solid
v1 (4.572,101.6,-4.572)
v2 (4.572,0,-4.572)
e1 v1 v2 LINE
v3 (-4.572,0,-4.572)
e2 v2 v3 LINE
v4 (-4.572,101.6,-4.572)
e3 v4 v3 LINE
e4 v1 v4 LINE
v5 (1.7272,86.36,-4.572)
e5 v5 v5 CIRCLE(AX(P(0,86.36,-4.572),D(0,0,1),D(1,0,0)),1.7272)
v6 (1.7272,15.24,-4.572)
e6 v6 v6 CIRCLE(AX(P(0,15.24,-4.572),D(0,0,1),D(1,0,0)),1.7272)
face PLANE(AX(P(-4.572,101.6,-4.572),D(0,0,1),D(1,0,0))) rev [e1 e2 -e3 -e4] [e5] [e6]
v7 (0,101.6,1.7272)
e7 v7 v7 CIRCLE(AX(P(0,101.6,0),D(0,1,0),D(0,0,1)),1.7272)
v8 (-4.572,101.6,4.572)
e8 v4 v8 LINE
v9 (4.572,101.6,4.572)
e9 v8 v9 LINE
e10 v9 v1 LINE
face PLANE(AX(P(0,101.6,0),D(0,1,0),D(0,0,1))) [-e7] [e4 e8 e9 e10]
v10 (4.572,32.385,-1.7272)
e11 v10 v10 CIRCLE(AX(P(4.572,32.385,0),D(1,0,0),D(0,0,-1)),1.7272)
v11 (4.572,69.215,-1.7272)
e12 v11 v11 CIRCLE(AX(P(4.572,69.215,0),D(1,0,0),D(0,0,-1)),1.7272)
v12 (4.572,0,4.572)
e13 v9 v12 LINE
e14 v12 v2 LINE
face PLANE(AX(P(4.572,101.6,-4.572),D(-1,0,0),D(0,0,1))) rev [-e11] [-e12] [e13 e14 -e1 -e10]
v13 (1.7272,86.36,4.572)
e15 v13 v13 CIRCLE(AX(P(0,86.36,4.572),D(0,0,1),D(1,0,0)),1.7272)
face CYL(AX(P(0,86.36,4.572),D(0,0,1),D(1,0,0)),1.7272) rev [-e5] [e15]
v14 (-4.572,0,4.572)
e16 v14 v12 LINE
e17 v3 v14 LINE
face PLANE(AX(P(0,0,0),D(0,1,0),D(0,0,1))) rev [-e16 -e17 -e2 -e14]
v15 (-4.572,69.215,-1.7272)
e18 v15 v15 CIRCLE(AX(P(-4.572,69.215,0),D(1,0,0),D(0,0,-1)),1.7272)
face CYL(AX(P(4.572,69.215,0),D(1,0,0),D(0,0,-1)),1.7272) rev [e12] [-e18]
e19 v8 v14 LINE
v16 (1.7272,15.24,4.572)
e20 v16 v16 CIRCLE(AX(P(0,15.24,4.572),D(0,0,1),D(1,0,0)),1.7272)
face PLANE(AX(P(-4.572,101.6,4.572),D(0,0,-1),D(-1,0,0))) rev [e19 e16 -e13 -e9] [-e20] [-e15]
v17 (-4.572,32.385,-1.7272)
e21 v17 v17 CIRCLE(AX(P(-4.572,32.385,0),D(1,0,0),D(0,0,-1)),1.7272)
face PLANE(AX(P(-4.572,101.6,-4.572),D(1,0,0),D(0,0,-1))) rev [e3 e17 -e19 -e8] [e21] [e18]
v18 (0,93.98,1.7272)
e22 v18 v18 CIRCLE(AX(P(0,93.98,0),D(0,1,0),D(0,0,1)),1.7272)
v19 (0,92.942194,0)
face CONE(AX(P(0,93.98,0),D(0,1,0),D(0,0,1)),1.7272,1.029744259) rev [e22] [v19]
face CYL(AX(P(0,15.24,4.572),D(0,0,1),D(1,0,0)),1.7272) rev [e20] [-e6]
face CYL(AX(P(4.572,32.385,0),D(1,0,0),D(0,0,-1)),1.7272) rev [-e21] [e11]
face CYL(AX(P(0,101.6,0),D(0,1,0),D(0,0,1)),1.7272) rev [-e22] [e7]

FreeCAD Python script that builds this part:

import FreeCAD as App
import Part
import Sketcher
from FreeCAD import Vector
Q = App.Units.Quantity


def add_polygon(sketch, points):
    """Adds a closed chain of lines whose ends are joined by coincident constraints."""
    first, n = sketch.GeometryCount, len(points)
    for a, b in zip(points, points[1:] + points[:1]):
        sketch.addGeometry(Part.LineSegment(App.Vector(*a, 0), App.Vector(*b, 0)), False)
    for i in range(n):
        sketch.addConstraint(Sketcher.Constraint("Coincident", first + i, 2, first + (i + 1) % n, 1))

doc = App.newDocument("Part")
body = doc.addObject("PartDesign::Body", "Body")

# Sketch on XZ plane
sketch1 = doc.addObject("Sketcher::SketchObject", "Sketch")
body.addObject(sketch1)
sketch1.AttachmentSupport = (doc.XZ_Plane, [""])
sketch1.MapMode = "FlatFace"
add_polygon(sketch1, [(-5, -5), (-5, 5), (5, 5), (5, -5)])  # lines 0-3
sketch1.addConstraint(Sketcher.Constraint("Vertical", 0))
sketch1.addConstraint(Sketcher.Constraint("Horizontal", 1))
sketch1.addConstraint(Sketcher.Constraint("Vertical", 2))
sketch1.addConstraint(Sketcher.Constraint("Horizontal", 3))
sketch1.addConstraint(Sketcher.Constraint("Symmetric", 0, 2, 2, 2, -1, 1))
sketch1.addConstraint(Sketcher.Constraint("Equal", 3, 0))
sketch1.addConstraint(Sketcher.Constraint("DistanceX", 1, 1, 1, 2, Q("0.36 in")))
pad1 = doc.addObject("PartDesign::Pad", "Pad")
body.addObject(pad1)
pad1.Profile = sketch1
pad1.Length = Q("4 in")
pad1.Reversed = True

# Sketch on XY plane
sketch2 = doc.addObject("Sketcher::SketchObject", "Sketch001")
body.addObject(sketch2)
sketch2.AttachmentSupport = (doc.XY_Plane, [""])
sketch2.MapMode = "FlatFace"
sketch2.AttachmentOffset = App.Placement(Vector(0, 0, 0.18 * 25.4), App.Rotation())
sketch2.addGeometry(Part.Circle(Vector(0, 86.4, 0), Vector(0, 0, 1), 1.7), False)
sketch2.addGeometry(Part.Circle(Vector(0, 15.2, 0), Vector(0, 0, 1), 1.7), False)
sketch2.addConstraint(Sketcher.Constraint("Equal", 0, 1))
sketch2.addConstraint(Sketcher.Constraint("PointOnObject", 0, 3, -2))
sketch2.addConstraint(Sketcher.Constraint("PointOnObject", 1, 3, -2))
sketch2.addConstraint(Sketcher.Constraint("Diameter", 0, Q("0.136 in")))
sketch2.addConstraint(Sketcher.Constraint("DistanceY", -1, 1, 0, 3, Q("3.4 in")))
sketch2.addConstraint(Sketcher.Constraint("DistanceY", -1, 1, 1, 3, Q("0.6 in")))
doc.recompute()
hole = doc.addObject("PartDesign::Hole", "Hole")
body.addObject(hole)
hole.Profile = sketch2
hole.ThreadType = "None"
hole.Diameter = Q("0.136 in")
hole.DepthType = "ThroughAll"

# Sketch on YZ plane
sketch3 = doc.addObject("Sketcher::SketchObject", "Sketch002")
body.addObject(sketch3)
sketch3.AttachmentSupport = (doc.YZ_Plane, [""])
sketch3.MapMode = "FlatFace"
sketch3.AttachmentOffset = App.Placement(Vector(0, 0, 0.18 * 25.4), App.Rotation())
sketch3.addGeometry(Part.Circle(Vector(69.2, 0, 0), Vector(0, 0, 1), 1.7), False)
sketch3.addGeometry(Part.Circle(Vector(32.4, 0, 0), Vector(0, 0, 1), 1.7), False)
sketch3.addConstraint(Sketcher.Constraint("Equal", 0, 1))
sketch3.addConstraint(Sketcher.Constraint("PointOnObject", 0, 3, -1))
sketch3.addConstraint(Sketcher.Constraint("PointOnObject", 1, 3, -1))
sketch3.addConstraint(Sketcher.Constraint("Diameter", 0, Q("0.136 in")))
sketch3.addConstraint(Sketcher.Constraint("DistanceX", 1, 3, 0, 3, Q("1.45 in")))
sketch3.addConstraint(Sketcher.Constraint("DistanceX", -1, 1, 0, 3, Q("2.725 in")))
doc.recompute()
hole2 = doc.addObject("PartDesign::Hole", "Hole001")
body.addObject(hole2)
hole2.Profile = sketch3
hole2.ThreadType = "None"
hole2.Diameter = Q("0.136 in")
hole2.DepthType = "ThroughAll"

# Sketch on XZ plane
sketch4 = doc.addObject("Sketcher::SketchObject", "Sketch003")
body.addObject(sketch4)
sketch4.AttachmentSupport = (doc.XZ_Plane, [""])
sketch4.MapMode = "FlatFace"
sketch4.AttachmentOffset = App.Placement(Vector(0, 0, -4 * 25.4), App.Rotation())
sketch4.addGeometry(Part.Circle(Vector(0, 0, 0), Vector(0, 0, 1), 1.7), False)
sketch4.addConstraint(Sketcher.Constraint("Coincident", 0, 3, -1, 1))
sketch4.addConstraint(Sketcher.Constraint("Diameter", 0, Q("0.136 in")))
doc.recompute()
hole3 = doc.addObject("PartDesign::Hole", "Hole002")
body.addObject(hole3)
hole3.Profile = sketch4
hole3.ThreadType = "None"
hole3.Diameter = Q("0.136 in")
hole3.DepthType = "Dimension"
hole3.Depth = Q("0.3 in")
hole3.DrillPoint = "Angled"
hole3.DrillPointAngle = 118
hole3.Reversed = True

doc.recompute()
